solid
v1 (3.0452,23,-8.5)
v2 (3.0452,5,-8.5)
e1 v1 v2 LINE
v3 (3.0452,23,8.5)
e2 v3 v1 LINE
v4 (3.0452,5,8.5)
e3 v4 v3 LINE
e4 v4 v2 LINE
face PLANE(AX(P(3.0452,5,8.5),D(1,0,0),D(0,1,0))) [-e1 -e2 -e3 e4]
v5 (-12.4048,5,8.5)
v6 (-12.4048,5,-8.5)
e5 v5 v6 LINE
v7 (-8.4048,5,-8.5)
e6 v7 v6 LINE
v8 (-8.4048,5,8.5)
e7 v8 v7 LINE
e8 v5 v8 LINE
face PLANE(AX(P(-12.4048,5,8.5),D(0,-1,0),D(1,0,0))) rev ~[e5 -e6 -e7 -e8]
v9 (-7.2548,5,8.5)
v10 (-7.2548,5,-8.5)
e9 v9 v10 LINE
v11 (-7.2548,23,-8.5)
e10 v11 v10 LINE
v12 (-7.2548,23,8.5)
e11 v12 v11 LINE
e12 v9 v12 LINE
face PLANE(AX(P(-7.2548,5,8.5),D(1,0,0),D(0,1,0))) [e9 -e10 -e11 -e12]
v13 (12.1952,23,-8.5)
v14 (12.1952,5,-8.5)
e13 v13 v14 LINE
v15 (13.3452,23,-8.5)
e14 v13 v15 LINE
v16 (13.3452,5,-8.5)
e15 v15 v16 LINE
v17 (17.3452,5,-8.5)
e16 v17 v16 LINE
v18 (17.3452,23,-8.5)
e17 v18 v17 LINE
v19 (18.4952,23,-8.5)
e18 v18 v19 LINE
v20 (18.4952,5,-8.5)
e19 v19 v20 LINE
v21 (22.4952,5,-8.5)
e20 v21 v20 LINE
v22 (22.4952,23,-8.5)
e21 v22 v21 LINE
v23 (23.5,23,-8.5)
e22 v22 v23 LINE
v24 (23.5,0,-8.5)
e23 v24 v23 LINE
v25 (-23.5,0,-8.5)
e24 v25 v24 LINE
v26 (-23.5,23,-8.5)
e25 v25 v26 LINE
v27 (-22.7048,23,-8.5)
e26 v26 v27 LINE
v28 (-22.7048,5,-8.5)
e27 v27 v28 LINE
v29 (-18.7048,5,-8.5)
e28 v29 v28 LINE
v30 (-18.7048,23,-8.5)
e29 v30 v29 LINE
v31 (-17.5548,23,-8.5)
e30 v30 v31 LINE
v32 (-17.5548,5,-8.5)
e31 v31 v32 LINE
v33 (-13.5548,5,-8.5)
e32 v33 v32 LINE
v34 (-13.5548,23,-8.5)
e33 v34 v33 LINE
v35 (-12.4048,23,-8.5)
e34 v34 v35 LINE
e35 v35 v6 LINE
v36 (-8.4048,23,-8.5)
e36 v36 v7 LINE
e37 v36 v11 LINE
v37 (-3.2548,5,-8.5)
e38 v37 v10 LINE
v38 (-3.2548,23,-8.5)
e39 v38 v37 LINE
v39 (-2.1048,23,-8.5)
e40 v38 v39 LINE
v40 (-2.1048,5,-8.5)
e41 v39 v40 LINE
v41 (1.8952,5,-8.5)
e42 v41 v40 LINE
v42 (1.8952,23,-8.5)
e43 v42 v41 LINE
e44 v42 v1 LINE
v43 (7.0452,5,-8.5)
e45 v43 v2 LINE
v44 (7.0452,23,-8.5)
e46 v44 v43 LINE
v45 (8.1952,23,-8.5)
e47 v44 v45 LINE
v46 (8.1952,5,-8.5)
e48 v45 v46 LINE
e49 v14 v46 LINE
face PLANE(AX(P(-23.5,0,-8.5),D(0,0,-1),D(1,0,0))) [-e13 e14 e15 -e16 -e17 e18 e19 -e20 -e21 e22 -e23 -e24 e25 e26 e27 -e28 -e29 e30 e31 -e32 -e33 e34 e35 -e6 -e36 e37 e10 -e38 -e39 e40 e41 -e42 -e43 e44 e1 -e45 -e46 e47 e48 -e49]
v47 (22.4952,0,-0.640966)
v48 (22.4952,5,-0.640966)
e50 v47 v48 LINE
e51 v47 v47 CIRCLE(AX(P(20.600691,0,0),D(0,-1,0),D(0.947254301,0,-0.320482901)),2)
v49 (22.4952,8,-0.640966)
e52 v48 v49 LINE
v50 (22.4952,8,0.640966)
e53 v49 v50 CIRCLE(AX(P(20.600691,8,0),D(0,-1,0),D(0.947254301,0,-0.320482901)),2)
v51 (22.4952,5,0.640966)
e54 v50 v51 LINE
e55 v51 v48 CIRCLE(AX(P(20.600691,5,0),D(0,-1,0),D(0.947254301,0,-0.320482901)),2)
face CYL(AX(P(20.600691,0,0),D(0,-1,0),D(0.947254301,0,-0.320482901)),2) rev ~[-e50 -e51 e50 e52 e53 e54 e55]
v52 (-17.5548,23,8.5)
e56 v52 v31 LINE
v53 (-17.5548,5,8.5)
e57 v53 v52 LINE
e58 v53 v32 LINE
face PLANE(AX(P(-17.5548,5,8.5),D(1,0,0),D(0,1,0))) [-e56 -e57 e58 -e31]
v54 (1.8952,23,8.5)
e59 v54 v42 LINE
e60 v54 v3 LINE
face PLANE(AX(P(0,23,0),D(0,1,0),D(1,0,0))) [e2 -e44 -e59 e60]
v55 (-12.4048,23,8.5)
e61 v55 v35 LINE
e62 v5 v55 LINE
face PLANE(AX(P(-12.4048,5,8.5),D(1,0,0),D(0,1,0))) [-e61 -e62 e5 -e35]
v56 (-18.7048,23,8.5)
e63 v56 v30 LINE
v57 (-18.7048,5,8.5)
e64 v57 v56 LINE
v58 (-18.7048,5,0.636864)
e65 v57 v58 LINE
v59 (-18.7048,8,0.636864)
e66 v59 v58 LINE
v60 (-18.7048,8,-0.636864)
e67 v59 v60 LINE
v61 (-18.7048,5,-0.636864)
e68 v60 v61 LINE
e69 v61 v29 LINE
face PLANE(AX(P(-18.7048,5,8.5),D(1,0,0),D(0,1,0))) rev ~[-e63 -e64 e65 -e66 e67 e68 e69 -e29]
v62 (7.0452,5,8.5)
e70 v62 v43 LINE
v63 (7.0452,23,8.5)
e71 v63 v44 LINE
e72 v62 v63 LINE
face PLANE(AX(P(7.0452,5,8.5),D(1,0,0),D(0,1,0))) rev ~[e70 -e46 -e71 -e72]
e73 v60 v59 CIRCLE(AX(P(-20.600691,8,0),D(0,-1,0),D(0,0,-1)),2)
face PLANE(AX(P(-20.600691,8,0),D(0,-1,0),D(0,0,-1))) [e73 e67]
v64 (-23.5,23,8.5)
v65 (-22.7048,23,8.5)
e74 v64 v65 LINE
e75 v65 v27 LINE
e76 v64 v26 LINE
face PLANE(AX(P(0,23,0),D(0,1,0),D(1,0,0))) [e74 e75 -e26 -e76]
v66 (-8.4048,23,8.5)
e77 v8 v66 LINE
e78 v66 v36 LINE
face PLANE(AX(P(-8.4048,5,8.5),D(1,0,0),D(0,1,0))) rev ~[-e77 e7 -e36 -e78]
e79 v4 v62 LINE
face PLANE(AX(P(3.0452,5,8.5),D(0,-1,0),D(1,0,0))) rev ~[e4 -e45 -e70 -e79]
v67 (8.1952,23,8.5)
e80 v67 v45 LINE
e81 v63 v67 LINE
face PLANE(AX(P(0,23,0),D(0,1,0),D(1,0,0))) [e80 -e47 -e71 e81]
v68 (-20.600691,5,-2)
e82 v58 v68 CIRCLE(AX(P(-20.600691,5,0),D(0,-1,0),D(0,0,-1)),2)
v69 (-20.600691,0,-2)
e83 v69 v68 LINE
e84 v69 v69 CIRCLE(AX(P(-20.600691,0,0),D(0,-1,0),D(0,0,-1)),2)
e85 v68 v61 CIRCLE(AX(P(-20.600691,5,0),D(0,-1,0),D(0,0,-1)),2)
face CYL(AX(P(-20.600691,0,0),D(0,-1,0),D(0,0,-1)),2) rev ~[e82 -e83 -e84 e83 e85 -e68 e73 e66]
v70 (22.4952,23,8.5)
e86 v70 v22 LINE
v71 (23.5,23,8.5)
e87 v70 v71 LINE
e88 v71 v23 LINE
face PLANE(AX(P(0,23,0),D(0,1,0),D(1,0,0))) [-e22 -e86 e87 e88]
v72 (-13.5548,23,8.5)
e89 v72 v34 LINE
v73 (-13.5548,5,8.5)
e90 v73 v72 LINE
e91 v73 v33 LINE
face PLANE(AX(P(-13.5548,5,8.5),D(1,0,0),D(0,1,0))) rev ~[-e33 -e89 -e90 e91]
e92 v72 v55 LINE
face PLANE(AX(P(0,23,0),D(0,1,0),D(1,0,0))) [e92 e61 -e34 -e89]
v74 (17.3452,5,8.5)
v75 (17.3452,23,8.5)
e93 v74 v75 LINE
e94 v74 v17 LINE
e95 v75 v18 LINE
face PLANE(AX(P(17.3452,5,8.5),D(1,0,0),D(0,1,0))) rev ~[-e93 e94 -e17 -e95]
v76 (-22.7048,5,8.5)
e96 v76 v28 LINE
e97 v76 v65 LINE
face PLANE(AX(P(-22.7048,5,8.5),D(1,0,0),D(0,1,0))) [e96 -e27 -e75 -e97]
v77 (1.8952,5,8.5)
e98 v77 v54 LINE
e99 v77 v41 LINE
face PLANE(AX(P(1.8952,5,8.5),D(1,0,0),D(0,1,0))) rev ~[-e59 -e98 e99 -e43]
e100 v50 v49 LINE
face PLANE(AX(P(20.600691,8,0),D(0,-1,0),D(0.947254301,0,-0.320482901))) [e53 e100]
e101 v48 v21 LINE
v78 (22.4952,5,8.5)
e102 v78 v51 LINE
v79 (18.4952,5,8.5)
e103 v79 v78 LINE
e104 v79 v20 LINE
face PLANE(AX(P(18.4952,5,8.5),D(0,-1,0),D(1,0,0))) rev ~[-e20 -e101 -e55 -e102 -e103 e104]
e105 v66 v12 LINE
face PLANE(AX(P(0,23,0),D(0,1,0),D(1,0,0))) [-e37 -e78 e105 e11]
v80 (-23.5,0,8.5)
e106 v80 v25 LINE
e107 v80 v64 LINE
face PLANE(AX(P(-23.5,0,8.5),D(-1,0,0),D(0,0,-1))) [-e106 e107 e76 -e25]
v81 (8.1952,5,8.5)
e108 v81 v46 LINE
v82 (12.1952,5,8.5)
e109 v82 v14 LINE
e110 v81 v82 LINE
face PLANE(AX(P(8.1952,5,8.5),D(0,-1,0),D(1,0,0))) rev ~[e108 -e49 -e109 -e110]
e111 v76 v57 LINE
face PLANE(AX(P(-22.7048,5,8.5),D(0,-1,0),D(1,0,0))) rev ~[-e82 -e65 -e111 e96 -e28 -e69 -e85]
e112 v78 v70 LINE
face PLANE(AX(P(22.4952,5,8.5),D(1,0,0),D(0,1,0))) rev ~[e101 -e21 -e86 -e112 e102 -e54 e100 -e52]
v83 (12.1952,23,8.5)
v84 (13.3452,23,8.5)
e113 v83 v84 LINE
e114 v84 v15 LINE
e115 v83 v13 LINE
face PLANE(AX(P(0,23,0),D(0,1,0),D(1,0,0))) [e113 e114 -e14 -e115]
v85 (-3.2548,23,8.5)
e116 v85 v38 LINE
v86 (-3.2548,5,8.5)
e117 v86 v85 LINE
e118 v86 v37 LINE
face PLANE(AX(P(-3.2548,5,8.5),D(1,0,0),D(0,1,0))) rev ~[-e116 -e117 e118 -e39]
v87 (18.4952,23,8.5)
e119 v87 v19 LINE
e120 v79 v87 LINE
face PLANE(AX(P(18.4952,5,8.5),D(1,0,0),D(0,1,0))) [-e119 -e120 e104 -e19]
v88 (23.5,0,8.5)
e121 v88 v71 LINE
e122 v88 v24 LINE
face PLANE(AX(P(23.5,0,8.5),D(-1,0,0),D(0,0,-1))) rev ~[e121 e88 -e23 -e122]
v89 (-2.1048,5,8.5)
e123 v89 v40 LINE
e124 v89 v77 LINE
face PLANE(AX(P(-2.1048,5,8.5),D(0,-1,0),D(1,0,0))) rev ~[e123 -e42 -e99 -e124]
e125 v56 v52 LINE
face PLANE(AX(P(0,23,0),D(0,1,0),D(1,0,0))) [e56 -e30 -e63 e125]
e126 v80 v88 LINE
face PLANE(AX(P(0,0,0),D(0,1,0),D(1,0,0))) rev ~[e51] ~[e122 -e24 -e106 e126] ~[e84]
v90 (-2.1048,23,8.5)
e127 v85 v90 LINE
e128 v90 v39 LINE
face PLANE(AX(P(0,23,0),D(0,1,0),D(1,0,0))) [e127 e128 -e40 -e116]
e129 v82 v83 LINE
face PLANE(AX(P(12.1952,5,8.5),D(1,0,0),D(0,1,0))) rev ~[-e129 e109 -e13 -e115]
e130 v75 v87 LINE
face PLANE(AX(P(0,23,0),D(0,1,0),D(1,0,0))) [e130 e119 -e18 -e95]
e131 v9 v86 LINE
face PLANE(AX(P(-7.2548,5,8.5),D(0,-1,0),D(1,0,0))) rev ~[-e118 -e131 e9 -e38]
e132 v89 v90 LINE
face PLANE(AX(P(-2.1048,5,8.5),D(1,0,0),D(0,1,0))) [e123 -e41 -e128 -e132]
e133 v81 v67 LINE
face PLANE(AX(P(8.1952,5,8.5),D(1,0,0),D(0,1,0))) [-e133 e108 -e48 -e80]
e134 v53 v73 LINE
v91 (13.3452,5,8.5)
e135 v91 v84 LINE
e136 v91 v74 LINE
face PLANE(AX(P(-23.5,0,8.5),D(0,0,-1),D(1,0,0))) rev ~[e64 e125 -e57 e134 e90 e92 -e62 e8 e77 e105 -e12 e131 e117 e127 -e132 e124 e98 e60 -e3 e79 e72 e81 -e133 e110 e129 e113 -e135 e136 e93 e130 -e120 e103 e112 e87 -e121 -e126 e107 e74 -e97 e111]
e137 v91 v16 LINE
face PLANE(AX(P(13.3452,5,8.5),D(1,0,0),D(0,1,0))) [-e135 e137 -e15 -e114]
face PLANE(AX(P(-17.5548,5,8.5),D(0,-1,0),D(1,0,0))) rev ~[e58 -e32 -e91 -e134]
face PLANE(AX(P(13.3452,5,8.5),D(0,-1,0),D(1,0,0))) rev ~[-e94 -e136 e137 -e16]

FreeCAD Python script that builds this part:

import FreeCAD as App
import Part
import Sketcher

V = App.Vector
Q = App.Units.Quantity


def add_polygon(sketch, points):
    """Adds a closed chain of lines whose ends are joined by coincident constraints."""
    first, n = sketch.GeometryCount, len(points)
    for a, b in zip(points, points[1:] + points[:1]):
        sketch.addGeometry(Part.LineSegment(App.Vector(*a, 0), App.Vector(*b, 0)), False)
    for i in range(n):
        sketch.addConstraint(Sketcher.Constraint("Coincident", first + i, 2, first + (i + 1) % n, 1))

doc = App.newDocument("Part")
body = doc.addObject("PartDesign::Body", "Body")

# Sketch on XZ plane
sketch1 = body.newObject("Sketcher::SketchObject", "Sketch")
sketch1.AttachmentSupport = (doc.getObject("XZ_Plane"), [""])
sketch1.MapMode = "FlatFace"
add_polygon(sketch1, [(-24, -8), (-24, 8), (24, 8), (24, -8)])  # lines 0-3
sketch1.addConstraint([
    Sketcher.Constraint("Vertical", 0),
    Sketcher.Constraint("Horizontal", 1),
    Sketcher.Constraint("Vertical", 2),
    Sketcher.Constraint("Horizontal", 3),
    Sketcher.Constraint("Symmetric", 0, 2, 2, 2, -1, 1),
    Sketcher.Constraint("DistanceX", 1, 1, 1, 2, Q("47 mm")),
    Sketcher.Constraint("DistanceY", 0, 1, 0, 2, Q("17 mm")),
])
pad1 = body.newObject("PartDesign::Pad", "Pad")
pad1.Profile = sketch1
pad1.Length = 23
pad1.Reversed = True

# Sketch on XY plane
sketch2 = body.newObject("Sketcher::SketchObject", "Sketch001")
sketch2.AttachmentSupport = (doc.getObject("XY_Plane"), [""])
sketch2.MapMode = "FlatFace"
sketch2.AttachmentOffset = App.Placement(V(0, 0, 8.5), App.Rotation())
add_polygon(sketch2, [(-22.7, 23), (-22.7, 5), (-18.7, 5), (-18.7, 23)])  # lines 0-3
add_polygon(sketch2, [(-17.6, 23), (-17.6, 5), (-13.6, 5), (-13.6, 23)])  # lines 4-7
add_polygon(sketch2, [(-12.4, 23), (-12.4, 5), (-8.4, 5), (-8.4, 23)])  # lines 8-11
add_polygon(sketch2, [(-7.3, 23), (-7.3, 5), (-3.3, 5), (-3.3, 23)])  # lines 12-15
add_polygon(sketch2, [(-2.1, 23), (-2.1, 5), (1.9, 5), (1.9, 23)])  # lines 16-19
add_polygon(sketch2, [(3, 23), (3, 5), (7, 5), (7, 23)])  # lines 20-23
add_polygon(sketch2, [(8.2, 23), (8.2, 5), (12.2, 5), (12.2, 23)])  # lines 24-27
add_polygon(sketch2, [(13.3, 23), (13.3, 5), (17.3, 5), (17.3, 23)])  # lines 28-31
add_polygon(sketch2, [(18.5, 23), (18.5, 5), (22.5, 5), (22.5, 23)])  # lines 32-35
sketch2.addConstraint([
    Sketcher.Constraint("Vertical", 0),
    Sketcher.Constraint("Horizontal", 1),
    Sketcher.Constraint("Vertical", 2),
    Sketcher.Constraint("Horizontal", 3),
    Sketcher.Constraint("Vertical", 4),
    Sketcher.Constraint("Horizontal", 5),
    Sketcher.Constraint("Vertical", 6),
    Sketcher.Constraint("Horizontal", 7),
    Sketcher.Constraint("Vertical", 8),
    Sketcher.Constraint("Horizontal", 9),
    Sketcher.Constraint("Vertical", 10),
    Sketcher.Constraint("Horizontal", 11),
    Sketcher.Constraint("Vertical", 12),
    Sketcher.Constraint("Horizontal", 13),
    Sketcher.Constraint("Vertical", 14),
    Sketcher.Constraint("Horizontal", 15),
    Sketcher.Constraint("Vertical", 16),
    Sketcher.Constraint("Horizontal", 17),
    Sketcher.Constraint("Vertical", 18),
    Sketcher.Constraint("Horizontal", 19),
    Sketcher.Constraint("Vertical", 20),
    Sketcher.Constraint("Horizontal", 21),
    Sketcher.Constraint("Vertical", 22),
    Sketcher.Constraint("Horizontal", 23),
    Sketcher.Constraint("Vertical", 24),
    Sketcher.Constraint("Horizontal", 25),
    Sketcher.Constraint("Vertical", 26),
    Sketcher.Constraint("Horizontal", 27),
    Sketcher.Constraint("Vertical", 28),
    Sketcher.Constraint("Horizontal", 29),
    Sketcher.Constraint("Vertical", 30),
    Sketcher.Constraint("Horizontal", 31),
    Sketcher.Constraint("Vertical", 32),
    Sketcher.Constraint("Horizontal", 33),
    Sketcher.Constraint("Vertical", 34),
    Sketcher.Constraint("Horizontal", 35),
    Sketcher.Constraint("Horizontal", 1, 2, 4, 2),
    Sketcher.Constraint("Horizontal", 3, 2, 6, 2),
    Sketcher.Constraint("Horizontal", 5, 2, 8, 2),
    Sketcher.Constraint("Horizontal", 7, 2, 10, 2),
    Sketcher.Constraint("Horizontal", 9, 2, 12, 2),
    Sketcher.Constraint("Horizontal", 11, 2, 14, 2),
    Sketcher.Constraint("Horizontal", 13, 2, 16, 2),
    Sketcher.Constraint("Horizontal", 15, 2, 18, 2),
    Sketcher.Constraint("Horizontal", 17, 2, 20, 2),
    Sketcher.Constraint("Horizontal", 19, 2, 22, 2),
    Sketcher.Constraint("Horizontal", 21, 2, 24, 2),
    Sketcher.Constraint("Horizontal", 23, 2, 26, 2),
    Sketcher.Constraint("Horizontal", 25, 2, 28, 2),
    Sketcher.Constraint("Horizontal", 27, 2, 30, 2),
    Sketcher.Constraint("Horizontal", 29, 2, 32, 2),
    Sketcher.Constraint("Horizontal", 31, 2, 34, 2),
    Sketcher.Constraint("Equal", 3, 5),
    Sketcher.Constraint("Equal", 7, 9),
    Sketcher.Constraint("Equal", 11, 13),
    Sketcher.Constraint("Equal", 15, 17),
    Sketcher.Constraint("Equal", 19, 21),
    Sketcher.Constraint("Equal", 23, 25),
    Sketcher.Constraint("Equal", 27, 29),
    Sketcher.Constraint("Equal", 31, 33),
    Sketcher.Constraint("DistanceX", 1, 1, 1, 2, Q("4 mm")),
    Sketcher.Constraint("DistanceY", 0, 2, 0, 1, Q("18 mm")),
    Sketcher.Constraint("DistanceY", -1, 1, 0, 2, Q("5 mm")),
    Sketcher.Constraint("DistanceX", 1, 2, 8, 2, Q("6.3 mm")),
    Sketcher.Constraint("DistanceX", 5, 2, 12, 2, Q("6.3 mm")),
    Sketcher.Constraint("DistanceX", 9, 2, 16, 2, Q("6.3 mm")),
    Sketcher.Constraint("DistanceX", 13, 2, 20, 2, Q("6.3 mm")),
    Sketcher.Constraint("DistanceX", 17, 2, 24, 2, Q("6.3 mm")),
    Sketcher.Constraint("DistanceX", 21, 2, 28, 2, Q("6.3 mm")),
    Sketcher.Constraint("DistanceX", 25, 2, 32, 2, Q("6.3 mm")),
    Sketcher.Constraint("DistanceX", 1, 2, 4, 2, Q("1.15 mm")),
    Sketcher.Constraint("DistanceX", 0, 2, -1, 1, Q("22.7048 mm")),
])
pocket1 = body.newObject("PartDesign::Pocket", "Pocket")
pocket1.Profile = sketch2
pocket1.Type = "ThroughAll"

# Sketch on XZ plane
sketch3 = body.newObject("Sketcher::SketchObject", "Sketch002")
sketch3.AttachmentSupport = (doc.getObject("XZ_Plane"), [""])
sketch3.MapMode = "FlatFace"
sketch3.addGeometry([
    Part.Circle(V(-20.6, 0, 0), V(0, 0, 1), 2),
    Part.Circle(V(20.6, 0, 0), V(0, 0, 1), 2),
], False)
sketch3.addConstraint([
    Sketcher.Constraint("Equal", 0, 1),
    Sketcher.Constraint("Symmetric", 0, 3, 1, 3, -1, 1),
    Sketcher.Constraint("PointOnObject", 0, 3, -1),
    Sketcher.Constraint("Diameter", 0, Q("4 mm")),
    Sketcher.Constraint("DistanceX", 0, 3, -1, 1, Q("20.600691 mm")),
])
pocket2 = body.newObject("PartDesign::Pocket", "Pocket001")
pocket2.Profile = sketch3
pocket2.Length = 8

doc.recompute()
